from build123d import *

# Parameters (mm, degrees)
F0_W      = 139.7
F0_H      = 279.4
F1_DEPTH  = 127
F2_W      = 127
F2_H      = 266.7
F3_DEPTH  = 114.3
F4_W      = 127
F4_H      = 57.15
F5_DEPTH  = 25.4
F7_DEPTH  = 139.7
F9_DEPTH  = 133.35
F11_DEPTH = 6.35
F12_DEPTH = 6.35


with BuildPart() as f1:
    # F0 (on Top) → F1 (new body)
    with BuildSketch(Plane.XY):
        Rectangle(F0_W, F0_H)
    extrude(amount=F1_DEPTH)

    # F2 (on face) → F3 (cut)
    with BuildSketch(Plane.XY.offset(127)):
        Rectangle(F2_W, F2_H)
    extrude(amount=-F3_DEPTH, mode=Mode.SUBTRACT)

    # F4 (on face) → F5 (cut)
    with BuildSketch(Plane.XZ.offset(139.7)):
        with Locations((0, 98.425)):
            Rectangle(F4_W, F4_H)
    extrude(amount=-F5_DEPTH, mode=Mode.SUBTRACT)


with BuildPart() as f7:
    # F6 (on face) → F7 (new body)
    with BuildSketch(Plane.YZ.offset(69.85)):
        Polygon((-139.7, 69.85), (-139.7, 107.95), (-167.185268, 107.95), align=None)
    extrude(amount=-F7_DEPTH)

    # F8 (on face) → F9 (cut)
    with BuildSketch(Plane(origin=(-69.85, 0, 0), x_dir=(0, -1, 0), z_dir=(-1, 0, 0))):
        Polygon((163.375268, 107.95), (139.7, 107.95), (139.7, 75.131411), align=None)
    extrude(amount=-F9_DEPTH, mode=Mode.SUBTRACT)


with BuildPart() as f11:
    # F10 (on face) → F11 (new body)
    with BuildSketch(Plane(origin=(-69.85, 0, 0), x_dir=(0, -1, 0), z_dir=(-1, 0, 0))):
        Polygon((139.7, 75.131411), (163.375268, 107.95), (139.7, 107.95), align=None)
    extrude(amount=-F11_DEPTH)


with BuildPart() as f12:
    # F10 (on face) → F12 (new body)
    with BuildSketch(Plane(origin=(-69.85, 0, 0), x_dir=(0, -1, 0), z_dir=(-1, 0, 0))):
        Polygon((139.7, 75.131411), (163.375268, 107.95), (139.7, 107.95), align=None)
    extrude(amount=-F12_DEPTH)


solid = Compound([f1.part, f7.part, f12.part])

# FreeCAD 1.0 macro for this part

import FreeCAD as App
import Part
import Sketcher

V = App.Vector
Q = App.Units.Quantity


def add_polygon(sketch, points):
    """Adds a closed chain of lines whose ends are joined by coincident constraints."""
    first, n = sketch.GeometryCount, len(points)
    for a, b in zip(points, points[1:] + points[:1]):
        sketch.addGeometry(Part.LineSegment(App.Vector(*a, 0), App.Vector(*b, 0)), False)
    for i in range(n):
        sketch.addConstraint(Sketcher.Constraint("Coincident", first + i, 2, first + (i + 1) % n, 1))

doc = App.newDocument("Part")
body = doc.addObject("PartDesign::Body", "Body")

# Sketch on XY plane
sketch1 = doc.addObject("Sketcher::SketchObject", "Sketch")
body.addObject(sketch1)
sketch1.AttachmentSupport = (doc.XY_Plane, [""])
sketch1.MapMode = "FlatFace"
add_polygon(sketch1, [(-70, 140), (-70, -140), (70, -140), (70, 140)])  # lines 0-3
sketch1.addConstraint(Sketcher.Constraint("Vertical", 0))
sketch1.addConstraint(Sketcher.Constraint("Horizontal", 1))
sketch1.addConstraint(Sketcher.Constraint("Vertical", 2))
sketch1.addConstraint(Sketcher.Constraint("Horizontal", 3))
sketch1.addConstraint(Sketcher.Constraint("Symmetric", 0, 2, 2, 2, -1, 1))
sketch1.addConstraint(Sketcher.Constraint("DistanceY", 0, 2, 0, 1, Q("11 in")))
sketch1.addConstraint(Sketcher.Constraint("DistanceX", 1, 1, 1, 2, Q("5.5 in")))
pad1 = doc.addObject("PartDesign::Pad", "Pad")
body.addObject(pad1)
pad1.Profile = sketch1
pad1.Length = Q("5 in")

# Sketch on XY plane
sketch2 = doc.addObject("Sketcher::SketchObject", "Sketch001")
body.addObject(sketch2)
sketch2.AttachmentSupport = (doc.XY_Plane, [""])
sketch2.MapMode = "FlatFace"
sketch2.AttachmentOffset = App.Placement(V(0, 0, 5 * 25.4), App.Rotation())
add_polygon(sketch2, [(-64, 133), (-64, -133), (64, -133), (64, 133)])  # lines 0-3
sketch2.addConstraint(Sketcher.Constraint("Vertical", 0))
sketch2.addConstraint(Sketcher.Constraint("Horizontal", 1))
sketch2.addConstraint(Sketcher.Constraint("Vertical", 2))
sketch2.addConstraint(Sketcher.Constraint("Horizontal", 3))
sketch2.addConstraint(Sketcher.Constraint("Symmetric", 0, 2, 2, 2, -1, 1))
sketch2.addConstraint(Sketcher.Constraint("DistanceX", 1, 1, 1, 2, Q("5 in")))
sketch2.addConstraint(Sketcher.Constraint("DistanceY", 0, 2, 0, 1, Q("10.5 in")))
pocket1 = doc.addObject("PartDesign::Pocket", "Pocket")
body.addObject(pocket1)
pocket1.Profile = sketch2
pocket1.Length = Q("4.5 in")

# Sketch on XZ plane
sketch3 = doc.addObject("Sketcher::SketchObject", "Sketch002")
body.addObject(sketch3)
sketch3.AttachmentSupport = (doc.XZ_Plane, [""])
sketch3.MapMode = "FlatFace"
sketch3.AttachmentOffset = App.Placement(V(0, 0, 5.5 * 25.4), App.Rotation())
add_polygon(sketch3, [(-64, 127), (-64, 70), (64, 70), (64, 127)])  # lines 0-3
sketch3.addConstraint(Sketcher.Constraint("Vertical", 0))
sketch3.addConstraint(Sketcher.Constraint("Horizontal", 1))
sketch3.addConstraint(Sketcher.Constraint("Vertical", 2))
sketch3.addConstraint(Sketcher.Constraint("Horizontal", 3))
sketch3.addConstraint(Sketcher.Constraint("DistanceX", 1, 1, 1, 2, Q("5 in")))
sketch3.addConstraint(Sketcher.Constraint("DistanceY", -1, 1, 2, 2, Q("5 in")))
sketch3.addConstraint(Sketcher.Constraint("DistanceY", 0, 2, 0, 1, Q("2.25 in")))
sketch3.addConstraint(Sketcher.Constraint("DistanceX", 0, 2, -1, 1, Q("2.5 in")))
pocket2 = doc.addObject("PartDesign::Pocket", "Pocket001")
body.addObject(pocket2)
pocket2.Profile = sketch3
pocket2.Length = Q("1 in")
body2 = doc.addObject("PartDesign::Body", "Body001")

# Sketch on YZ plane
sketch4 = doc.addObject("Sketcher::SketchObject", "Sketch003")
body2.addObject(sketch4)
sketch4.AttachmentSupport = (doc.getObject("YZ_Plane001"), [""])
sketch4.MapMode = "FlatFace"
sketch4.AttachmentOffset = App.Placement(V(0, 0, 2.75 * 25.4), App.Rotation())
add_polygon(sketch4, [(-140, 70), (-140, 108), (-167, 108)])  # lines 0-2
sketch4.addConstraint(Sketcher.Constraint("Vertical", 0))
sketch4.addConstraint(Sketcher.Constraint("Horizontal", 1))
sketch4.addConstraint(Sketcher.Constraint("DistanceY", 0, 1, 0, 2, Q("1.5 in")))
sketch4.addConstraint(Sketcher.Constraint("DistanceX", 0, 2, -1, 1, Q("5.5 in")))
sketch4.addConstraint(Sketcher.Constraint("DistanceY", -1, 1, 0, 2, Q("4.25 in")))
sketch4.addConstraint(Sketcher.Constraint("DistanceX", 1, 2, 1, 1, Q("27.485268 mm")))
pad2 = doc.addObject("PartDesign::Pad", "Pad001")
body2.addObject(pad2)
pad2.Profile = sketch4
pad2.Length = Q("5.5 in")
pad2.Reversed = True

# Sketch on YZ plane
sketch5 = doc.addObject("Sketcher::SketchObject", "Sketch004")
body2.addObject(sketch5)
sketch5.AttachmentSupport = (doc.getObject("YZ_Plane001"), [""])
sketch5.MapMode = "FlatFace"
sketch5.AttachmentOffset = App.Placement(V(0, 0, -2.75 * 25.4), App.Rotation())
add_polygon(sketch5, [(-163, 108), (-140, 108), (-140, 75)])  # lines 0-2
sketch5.addConstraint(Sketcher.Constraint("Horizontal", 0))
sketch5.addConstraint(Sketcher.Constraint("Vertical", 1))
sketch5.addConstraint(Sketcher.Constraint("DistanceX", 0, 2, -1, 1, Q("5.5 in")))
sketch5.addConstraint(Sketcher.Constraint("DistanceY", -1, 1, 0, 2, Q("4.25 in")))
sketch5.addConstraint(Sketcher.Constraint("Distance", 2, Q("40.467 mm")))
sketch5.addConstraint(Sketcher.Constraint("DistanceX", 0, 1, 0, 2, Q("23.675268 mm")))
pocket3 = doc.addObject("PartDesign::Pocket", "Pocket002")
body2.addObject(pocket3)
pocket3.Profile = sketch5
pocket3.Length = Q("5.25 in")
pocket3.Reversed = True
body3 = doc.addObject("PartDesign::Body", "Body002")

# Sketch on YZ plane
sketch6 = doc.addObject("Sketcher::SketchObject", "Sketch005")
body3.addObject(sketch6)
sketch6.AttachmentSupport = (doc.getObject("YZ_Plane002"), [""])
sketch6.MapMode = "FlatFace"
sketch6.AttachmentOffset = App.Placement(V(0, 0, -2.75 * 25.4), App.Rotation())
add_polygon(sketch6, [(-140, 75), (-163, 108), (-140, 108)])  # lines 0-2
sketch6.addConstraint(Sketcher.Constraint("Horizontal", 1))
sketch6.addConstraint(Sketcher.Constraint("Vertical", 2))
sketch6.addConstraint(Sketcher.Constraint("DistanceX", 1, 2, -1, 1, Q("5.5 in")))
sketch6.addConstraint(Sketcher.Constraint("DistanceY", -1, 1, 0, 2, Q("4.25 in")))
sketch6.addConstraint(Sketcher.Constraint("Distance", 0, Q("40.467 mm")))
sketch6.addConstraint(Sketcher.Constraint("DistanceX", 1, 1, 1, 2, Q("23.675268 mm")))
pad3 = doc.addObject("PartDesign::Pad", "Pad002")
body3.addObject(pad3)
pad3.Profile = sketch6
pad3.Length = Q("0.25 in")
body4 = doc.addObject("PartDesign::Body", "Body003")

# Sketch on YZ plane
sketch7 = doc.addObject("Sketcher::SketchObject", "Sketch006")
body4.addObject(sketch7)
sketch7.AttachmentSupport = (doc.getObject("YZ_Plane003"), [""])
sketch7.MapMode = "FlatFace"
sketch7.AttachmentOffset = App.Placement(V(0, 0, -2.75 * 25.4), App.Rotation())
add_polygon(sketch7, [(-140, 75), (-163, 108), (-140, 108)])  # lines 0-2
sketch7.addConstraint(Sketcher.Constraint("Horizontal", 1))
sketch7.addConstraint(Sketcher.Constraint("Vertical", 2))
sketch7.addConstraint(Sketcher.Constraint("DistanceX", 1, 2, -1, 1, Q("5.5 in")))
sketch7.addConstraint(Sketcher.Constraint("DistanceY", -1, 1, 0, 2, Q("4.25 in")))
sketch7.addConstraint(Sketcher.Constraint("Distance", 0, Q("40.467 mm")))
sketch7.addConstraint(Sketcher.Constraint("DistanceX", 1, 1, 1, 2, Q("23.675268 mm")))
pad4 = doc.addObject("PartDesign::Pad", "Pad003")
body4.addObject(pad4)
pad4.Profile = sketch7
pad4.Length = Q("0.25 in")
body3.Visibility = False

doc.recompute()
